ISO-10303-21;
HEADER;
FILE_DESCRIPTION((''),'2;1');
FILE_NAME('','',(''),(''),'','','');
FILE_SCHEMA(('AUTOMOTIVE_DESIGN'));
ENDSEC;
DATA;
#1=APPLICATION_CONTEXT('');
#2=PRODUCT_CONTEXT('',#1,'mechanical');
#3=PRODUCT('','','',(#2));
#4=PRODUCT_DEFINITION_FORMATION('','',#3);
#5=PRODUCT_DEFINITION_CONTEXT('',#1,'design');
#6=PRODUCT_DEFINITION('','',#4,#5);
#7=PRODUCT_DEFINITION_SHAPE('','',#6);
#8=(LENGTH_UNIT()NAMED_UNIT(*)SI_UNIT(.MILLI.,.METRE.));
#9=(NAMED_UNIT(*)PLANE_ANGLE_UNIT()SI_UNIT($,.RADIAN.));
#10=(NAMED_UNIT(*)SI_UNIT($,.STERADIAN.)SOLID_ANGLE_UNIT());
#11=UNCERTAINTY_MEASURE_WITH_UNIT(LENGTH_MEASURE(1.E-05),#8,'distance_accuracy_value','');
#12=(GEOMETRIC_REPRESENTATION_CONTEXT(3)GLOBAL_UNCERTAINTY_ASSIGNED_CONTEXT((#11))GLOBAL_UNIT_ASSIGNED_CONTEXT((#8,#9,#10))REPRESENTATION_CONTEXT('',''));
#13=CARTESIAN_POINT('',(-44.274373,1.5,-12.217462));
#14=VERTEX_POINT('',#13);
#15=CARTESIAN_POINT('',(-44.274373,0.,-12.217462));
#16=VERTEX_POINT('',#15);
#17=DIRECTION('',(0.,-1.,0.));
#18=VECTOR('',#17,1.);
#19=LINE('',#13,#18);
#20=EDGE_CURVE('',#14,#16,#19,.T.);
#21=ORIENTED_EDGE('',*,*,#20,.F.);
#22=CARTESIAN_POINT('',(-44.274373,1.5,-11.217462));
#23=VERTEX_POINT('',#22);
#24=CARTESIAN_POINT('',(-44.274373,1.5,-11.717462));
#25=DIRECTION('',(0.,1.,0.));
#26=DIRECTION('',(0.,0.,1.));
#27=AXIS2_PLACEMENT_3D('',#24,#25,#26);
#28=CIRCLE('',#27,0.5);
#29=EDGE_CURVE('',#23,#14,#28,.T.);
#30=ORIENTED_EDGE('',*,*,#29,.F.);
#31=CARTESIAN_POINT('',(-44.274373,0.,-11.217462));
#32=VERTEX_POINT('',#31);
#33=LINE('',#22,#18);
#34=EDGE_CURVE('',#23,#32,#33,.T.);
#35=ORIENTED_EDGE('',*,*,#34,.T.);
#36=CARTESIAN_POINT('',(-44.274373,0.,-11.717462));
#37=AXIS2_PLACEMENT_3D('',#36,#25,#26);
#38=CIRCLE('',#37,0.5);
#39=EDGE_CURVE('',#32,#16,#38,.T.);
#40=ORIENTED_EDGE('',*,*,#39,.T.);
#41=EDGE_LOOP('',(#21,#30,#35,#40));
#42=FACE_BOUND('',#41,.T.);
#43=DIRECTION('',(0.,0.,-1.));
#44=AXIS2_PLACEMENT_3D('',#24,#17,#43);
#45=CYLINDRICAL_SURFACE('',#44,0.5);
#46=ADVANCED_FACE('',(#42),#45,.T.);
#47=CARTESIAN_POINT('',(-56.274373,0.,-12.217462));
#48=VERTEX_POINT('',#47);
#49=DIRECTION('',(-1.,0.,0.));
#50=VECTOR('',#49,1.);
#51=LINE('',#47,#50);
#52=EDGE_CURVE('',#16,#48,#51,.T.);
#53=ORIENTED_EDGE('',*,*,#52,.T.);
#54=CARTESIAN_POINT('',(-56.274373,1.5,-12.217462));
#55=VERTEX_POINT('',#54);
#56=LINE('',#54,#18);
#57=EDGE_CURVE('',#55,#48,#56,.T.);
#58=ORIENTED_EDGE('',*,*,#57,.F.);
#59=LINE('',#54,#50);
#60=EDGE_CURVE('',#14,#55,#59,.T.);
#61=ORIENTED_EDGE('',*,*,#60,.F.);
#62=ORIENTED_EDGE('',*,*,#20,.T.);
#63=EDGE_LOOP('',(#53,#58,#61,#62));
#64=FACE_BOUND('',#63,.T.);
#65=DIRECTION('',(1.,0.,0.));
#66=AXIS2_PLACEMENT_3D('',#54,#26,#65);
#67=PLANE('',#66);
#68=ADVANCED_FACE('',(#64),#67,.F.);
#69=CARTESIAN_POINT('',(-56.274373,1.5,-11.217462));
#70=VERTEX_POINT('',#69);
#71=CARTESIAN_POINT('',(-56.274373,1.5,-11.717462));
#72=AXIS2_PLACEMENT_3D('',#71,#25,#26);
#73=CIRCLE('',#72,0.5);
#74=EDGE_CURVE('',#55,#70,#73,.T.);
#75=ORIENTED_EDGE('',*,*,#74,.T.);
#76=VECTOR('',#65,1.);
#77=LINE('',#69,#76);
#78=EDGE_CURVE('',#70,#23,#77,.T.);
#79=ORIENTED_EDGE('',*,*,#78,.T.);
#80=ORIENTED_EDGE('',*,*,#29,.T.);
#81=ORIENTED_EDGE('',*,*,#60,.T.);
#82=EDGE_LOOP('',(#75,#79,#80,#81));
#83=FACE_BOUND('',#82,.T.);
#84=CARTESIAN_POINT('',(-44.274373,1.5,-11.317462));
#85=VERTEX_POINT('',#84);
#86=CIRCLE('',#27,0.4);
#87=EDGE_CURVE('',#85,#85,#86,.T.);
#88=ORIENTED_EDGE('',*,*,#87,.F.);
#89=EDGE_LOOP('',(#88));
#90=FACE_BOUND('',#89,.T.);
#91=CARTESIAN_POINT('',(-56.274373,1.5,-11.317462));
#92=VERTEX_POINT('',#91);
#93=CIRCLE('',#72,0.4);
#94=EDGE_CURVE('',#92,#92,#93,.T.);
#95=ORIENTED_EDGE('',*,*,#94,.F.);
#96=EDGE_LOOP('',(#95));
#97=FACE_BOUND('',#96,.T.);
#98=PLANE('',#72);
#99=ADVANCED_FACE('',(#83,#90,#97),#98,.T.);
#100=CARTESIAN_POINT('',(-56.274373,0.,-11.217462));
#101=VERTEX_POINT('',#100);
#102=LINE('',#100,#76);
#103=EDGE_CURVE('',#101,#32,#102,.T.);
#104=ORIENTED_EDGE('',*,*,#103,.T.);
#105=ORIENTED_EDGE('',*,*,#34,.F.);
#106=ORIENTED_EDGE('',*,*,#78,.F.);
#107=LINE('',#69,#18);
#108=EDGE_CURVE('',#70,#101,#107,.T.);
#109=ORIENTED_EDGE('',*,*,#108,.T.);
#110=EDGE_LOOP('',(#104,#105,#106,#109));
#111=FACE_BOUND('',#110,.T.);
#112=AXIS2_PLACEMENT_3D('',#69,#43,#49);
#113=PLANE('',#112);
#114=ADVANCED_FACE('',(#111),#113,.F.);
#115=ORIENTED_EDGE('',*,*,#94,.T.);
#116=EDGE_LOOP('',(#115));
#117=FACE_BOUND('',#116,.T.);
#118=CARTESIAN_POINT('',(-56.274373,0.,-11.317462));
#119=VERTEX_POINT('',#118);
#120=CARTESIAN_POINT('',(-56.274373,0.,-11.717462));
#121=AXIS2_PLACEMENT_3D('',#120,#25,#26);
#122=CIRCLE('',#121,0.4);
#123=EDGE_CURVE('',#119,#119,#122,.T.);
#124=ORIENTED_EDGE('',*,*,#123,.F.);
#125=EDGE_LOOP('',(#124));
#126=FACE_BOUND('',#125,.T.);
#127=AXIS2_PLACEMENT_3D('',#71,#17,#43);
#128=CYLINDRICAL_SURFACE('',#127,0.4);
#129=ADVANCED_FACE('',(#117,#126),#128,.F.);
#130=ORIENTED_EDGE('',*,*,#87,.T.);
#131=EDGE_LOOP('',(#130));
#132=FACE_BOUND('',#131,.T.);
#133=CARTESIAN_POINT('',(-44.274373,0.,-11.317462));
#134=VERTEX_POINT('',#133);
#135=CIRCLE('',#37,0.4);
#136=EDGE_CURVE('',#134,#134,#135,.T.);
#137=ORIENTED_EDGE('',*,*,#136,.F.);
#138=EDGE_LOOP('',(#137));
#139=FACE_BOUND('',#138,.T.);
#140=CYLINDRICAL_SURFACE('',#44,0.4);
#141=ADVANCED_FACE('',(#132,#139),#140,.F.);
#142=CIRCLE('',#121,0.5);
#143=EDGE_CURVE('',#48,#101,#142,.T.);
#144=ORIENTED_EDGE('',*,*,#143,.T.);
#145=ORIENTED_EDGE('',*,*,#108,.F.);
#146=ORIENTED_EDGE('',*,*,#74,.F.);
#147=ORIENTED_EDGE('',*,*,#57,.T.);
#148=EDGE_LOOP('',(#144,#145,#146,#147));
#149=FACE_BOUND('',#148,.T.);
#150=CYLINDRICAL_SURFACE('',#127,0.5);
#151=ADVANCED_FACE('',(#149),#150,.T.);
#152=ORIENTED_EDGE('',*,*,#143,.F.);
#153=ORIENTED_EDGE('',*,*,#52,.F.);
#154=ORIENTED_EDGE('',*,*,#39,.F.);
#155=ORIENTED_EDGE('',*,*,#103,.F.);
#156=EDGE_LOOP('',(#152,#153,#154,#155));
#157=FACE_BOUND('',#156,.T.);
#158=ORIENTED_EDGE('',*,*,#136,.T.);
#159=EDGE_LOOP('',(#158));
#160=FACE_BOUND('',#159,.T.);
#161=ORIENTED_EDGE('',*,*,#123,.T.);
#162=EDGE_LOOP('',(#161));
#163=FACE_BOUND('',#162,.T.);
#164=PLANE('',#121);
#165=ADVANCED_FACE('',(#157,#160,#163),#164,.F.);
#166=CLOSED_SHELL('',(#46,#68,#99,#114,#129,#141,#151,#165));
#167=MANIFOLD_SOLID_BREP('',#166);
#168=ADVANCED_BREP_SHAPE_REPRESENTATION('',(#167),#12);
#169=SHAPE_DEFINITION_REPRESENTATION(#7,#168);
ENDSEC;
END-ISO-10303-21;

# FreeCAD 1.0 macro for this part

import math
import FreeCAD as App
import Part
import Sketcher

doc = App.newDocument("Part")
body = doc.addObject("PartDesign::Body", "Body")

sketch1 = doc.addObject("Sketcher::SketchObject", "Sketch")
body.addObject(sketch1)
sketch1.AttachmentSupport = (doc.XZ_Plane, [""])
sketch1.MapMode = "FlatFace"
sketch1.addGeometry(Part.LineSegment(App.Vector(-44.27, -12.22, 0), App.Vector(-56.27, -12.22, 0)), False)
sketch1.addGeometry(Part.ArcOfCircle(Part.Circle(App.Vector(-56.27, -11.72, 0), App.Vector(0, 0, 1), 0.5), math.radians(90), math.radians(270)), False)
sketch1.addGeometry(Part.LineSegment(App.Vector(-56.27, -11.22, 0), App.Vector(-44.27, -11.22, 0)), False)
sketch1.addGeometry(Part.ArcOfCircle(Part.Circle(App.Vector(-44.27, -11.72, 0), App.Vector(0, 0, 1), 0.5), math.radians(-90), math.radians(90)), False)
sketch1.addGeometry(Part.Circle(App.Vector(-44.27, -11.72, 0), App.Vector(0, 0, 1), 0.4), False)
sketch1.addGeometry(Part.Circle(App.Vector(-56.27, -11.72, 0), App.Vector(0, 0, 1), 0.4), False)
sketch1.addConstraint(Sketcher.Constraint("Tangent", 0, 2, 1, 2))
sketch1.addConstraint(Sketcher.Constraint("Tangent", 1, 1, 2, 1))
sketch1.addConstraint(Sketcher.Constraint("Tangent", 2, 2, 3, 2))
sketch1.addConstraint(Sketcher.Constraint("Tangent", 3, 1, 0, 1))
sketch1.addConstraint(Sketcher.Constraint("Horizontal", 0))
sketch1.addConstraint(Sketcher.Constraint("Horizontal", 2))
sketch1.addConstraint(Sketcher.Constraint("Coincident", 4, 3, 3, 3))
sketch1.addConstraint(Sketcher.Constraint("Coincident", 5, 3, 1, 3))
sketch1.addConstraint(Sketcher.Constraint("Equal", 4, 5))
sketch1.addConstraint(Sketcher.Constraint("Diameter", 4, 0.8))
sketch1.addConstraint(Sketcher.Constraint("Radius", 1, 0.5))
sketch1.addConstraint(Sketcher.Constraint("DistanceX", 0, 2, 0, 1, 12.0))
sketch1.addConstraint(Sketcher.Constraint("DistanceX", 1, 3, -1, 1, 56.274373))
sketch1.addConstraint(Sketcher.Constraint("DistanceY", 1, 3, -1, 1, 11.717462))
pad1 = doc.addObject("PartDesign::Pad", "Pad")
body.addObject(pad1)
pad1.Profile = sketch1
pad1.Length = 1.5
pad1.Reversed = True

doc.recompute()
